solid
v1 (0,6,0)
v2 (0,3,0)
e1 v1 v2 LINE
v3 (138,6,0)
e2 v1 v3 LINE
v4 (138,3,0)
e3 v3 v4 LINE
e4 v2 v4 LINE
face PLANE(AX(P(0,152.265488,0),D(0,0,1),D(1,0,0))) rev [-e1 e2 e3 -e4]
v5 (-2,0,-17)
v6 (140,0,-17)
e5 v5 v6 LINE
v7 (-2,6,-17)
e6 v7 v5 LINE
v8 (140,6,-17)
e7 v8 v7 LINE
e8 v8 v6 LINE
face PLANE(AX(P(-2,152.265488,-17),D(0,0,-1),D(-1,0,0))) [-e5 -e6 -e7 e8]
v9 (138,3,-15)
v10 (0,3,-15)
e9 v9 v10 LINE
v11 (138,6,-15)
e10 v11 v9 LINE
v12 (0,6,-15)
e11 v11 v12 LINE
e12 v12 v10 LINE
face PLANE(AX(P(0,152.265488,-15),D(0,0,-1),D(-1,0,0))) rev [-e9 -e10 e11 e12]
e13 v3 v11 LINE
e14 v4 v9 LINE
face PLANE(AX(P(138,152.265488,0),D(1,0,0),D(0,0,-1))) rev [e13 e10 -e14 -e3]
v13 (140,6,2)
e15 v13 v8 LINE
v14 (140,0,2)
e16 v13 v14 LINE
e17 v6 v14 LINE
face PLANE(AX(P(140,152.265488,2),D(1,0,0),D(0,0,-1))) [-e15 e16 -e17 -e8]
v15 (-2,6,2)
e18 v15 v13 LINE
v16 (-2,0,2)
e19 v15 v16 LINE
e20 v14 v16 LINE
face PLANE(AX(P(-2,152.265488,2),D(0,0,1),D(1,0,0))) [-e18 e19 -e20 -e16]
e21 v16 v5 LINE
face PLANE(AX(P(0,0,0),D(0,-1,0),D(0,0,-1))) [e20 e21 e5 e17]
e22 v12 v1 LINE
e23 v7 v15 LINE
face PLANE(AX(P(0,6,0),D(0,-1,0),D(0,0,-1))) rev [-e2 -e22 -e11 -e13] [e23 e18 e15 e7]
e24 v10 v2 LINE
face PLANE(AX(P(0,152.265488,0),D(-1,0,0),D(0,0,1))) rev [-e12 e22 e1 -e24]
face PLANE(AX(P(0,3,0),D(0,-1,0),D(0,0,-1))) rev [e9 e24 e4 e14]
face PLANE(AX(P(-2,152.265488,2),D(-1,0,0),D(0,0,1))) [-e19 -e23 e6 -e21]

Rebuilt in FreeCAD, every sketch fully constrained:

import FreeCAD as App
import Part
import Sketcher
from FreeCAD import Vector
Q = App.Units.Quantity


def add_polygon(sketch, points):
    """Adds a closed chain of lines whose ends are joined by coincident constraints."""
    first, n = sketch.GeometryCount, len(points)
    for a, b in zip(points, points[1:] + points[:1]):
        sketch.addGeometry(Part.LineSegment(App.Vector(*a, 0), App.Vector(*b, 0)), False)
    for i in range(n):
        sketch.addConstraint(Sketcher.Constraint("Coincident", first + i, 2, first + (i + 1) % n, 1))

doc = App.newDocument("Part")
body = doc.addObject("PartDesign::Body", "Body")

sketch1 = body.newObject("Sketcher::SketchObject", "Sketch")
sketch1.AttachmentSupport = (doc.getObject("XZ_Plane"), [""])
sketch1.MapMode = "FlatFace"
add_polygon(sketch1, [(0, -15), (0, 0), (138, 0), (138, -15)])
sketch1.addConstraint(Sketcher.Constraint("Vertical", 0))
sketch1.addConstraint(Sketcher.Constraint("Horizontal", 1))
sketch1.addConstraint(Sketcher.Constraint("Vertical", 2))
sketch1.addConstraint(Sketcher.Constraint("Horizontal", 3))
sketch1.addConstraint(Sketcher.Constraint("Coincident", 0, 2, -1, 1))
sketch1.addConstraint(Sketcher.Constraint("DistanceX", 1, 1, 1, 2, Q("138 mm")))
sketch1.addConstraint(Sketcher.Constraint("DistanceY", 0, 1, 0, 2, Q("15 mm")))
pad1 = body.newObject("PartDesign::Pad", "Pad")
pad1.Profile = sketch1
pad1.Length = 3
pad1.Reversed = True

sketch2 = body.newObject("Sketcher::SketchObject", "Sketch001")
sketch2.AttachmentSupport = (doc.getObject("XZ_Plane"), [""])
sketch2.MapMode = "FlatFace"
add_polygon(sketch2, [(-2, 2), (-2, -17), (140, -17), (140, 2)])
add_polygon(sketch2, [(138, -15), (0, -15), (0, 0), (138, 0)])
sketch2.addConstraint(Sketcher.Constraint("Vertical", 0))
sketch2.addConstraint(Sketcher.Constraint("Horizontal", 1))
sketch2.addConstraint(Sketcher.Constraint("Vertical", 2))
sketch2.addConstraint(Sketcher.Constraint("Horizontal", 3))
sketch2.addConstraint(Sketcher.Constraint("Horizontal", 4))
sketch2.addConstraint(Sketcher.Constraint("Vertical", 5))
sketch2.addConstraint(Sketcher.Constraint("Horizontal", 6))
sketch2.addConstraint(Sketcher.Constraint("Vertical", 7))
sketch2.addConstraint(Sketcher.Constraint("Coincident", 5, 2, -1, 1))
sketch2.addConstraint(Sketcher.Constraint("DistanceX", 1, 1, 1, 2, Q("142 mm")))
sketch2.addConstraint(Sketcher.Constraint("DistanceX", 4, 2, 4, 1, Q("138 mm")))
sketch2.addConstraint(Sketcher.Constraint("DistanceY", 0, 2, 0, 1, Q("19 mm")))
sketch2.addConstraint(Sketcher.Constraint("DistanceY", 5, 1, 5, 2, Q("15 mm")))
sketch2.addConstraint(Sketcher.Constraint("DistanceX", 0, 2, -1, 1, Q("2 mm")))
sketch2.addConstraint(Sketcher.Constraint("DistanceY", 0, 2, -1, 1, Q("17 mm")))
pad2 = body.newObject("PartDesign::Pad", "Pad001")
pad2.Profile = sketch2
pad2.Length = 6
pad2.Reversed = True

doc.recompute()
